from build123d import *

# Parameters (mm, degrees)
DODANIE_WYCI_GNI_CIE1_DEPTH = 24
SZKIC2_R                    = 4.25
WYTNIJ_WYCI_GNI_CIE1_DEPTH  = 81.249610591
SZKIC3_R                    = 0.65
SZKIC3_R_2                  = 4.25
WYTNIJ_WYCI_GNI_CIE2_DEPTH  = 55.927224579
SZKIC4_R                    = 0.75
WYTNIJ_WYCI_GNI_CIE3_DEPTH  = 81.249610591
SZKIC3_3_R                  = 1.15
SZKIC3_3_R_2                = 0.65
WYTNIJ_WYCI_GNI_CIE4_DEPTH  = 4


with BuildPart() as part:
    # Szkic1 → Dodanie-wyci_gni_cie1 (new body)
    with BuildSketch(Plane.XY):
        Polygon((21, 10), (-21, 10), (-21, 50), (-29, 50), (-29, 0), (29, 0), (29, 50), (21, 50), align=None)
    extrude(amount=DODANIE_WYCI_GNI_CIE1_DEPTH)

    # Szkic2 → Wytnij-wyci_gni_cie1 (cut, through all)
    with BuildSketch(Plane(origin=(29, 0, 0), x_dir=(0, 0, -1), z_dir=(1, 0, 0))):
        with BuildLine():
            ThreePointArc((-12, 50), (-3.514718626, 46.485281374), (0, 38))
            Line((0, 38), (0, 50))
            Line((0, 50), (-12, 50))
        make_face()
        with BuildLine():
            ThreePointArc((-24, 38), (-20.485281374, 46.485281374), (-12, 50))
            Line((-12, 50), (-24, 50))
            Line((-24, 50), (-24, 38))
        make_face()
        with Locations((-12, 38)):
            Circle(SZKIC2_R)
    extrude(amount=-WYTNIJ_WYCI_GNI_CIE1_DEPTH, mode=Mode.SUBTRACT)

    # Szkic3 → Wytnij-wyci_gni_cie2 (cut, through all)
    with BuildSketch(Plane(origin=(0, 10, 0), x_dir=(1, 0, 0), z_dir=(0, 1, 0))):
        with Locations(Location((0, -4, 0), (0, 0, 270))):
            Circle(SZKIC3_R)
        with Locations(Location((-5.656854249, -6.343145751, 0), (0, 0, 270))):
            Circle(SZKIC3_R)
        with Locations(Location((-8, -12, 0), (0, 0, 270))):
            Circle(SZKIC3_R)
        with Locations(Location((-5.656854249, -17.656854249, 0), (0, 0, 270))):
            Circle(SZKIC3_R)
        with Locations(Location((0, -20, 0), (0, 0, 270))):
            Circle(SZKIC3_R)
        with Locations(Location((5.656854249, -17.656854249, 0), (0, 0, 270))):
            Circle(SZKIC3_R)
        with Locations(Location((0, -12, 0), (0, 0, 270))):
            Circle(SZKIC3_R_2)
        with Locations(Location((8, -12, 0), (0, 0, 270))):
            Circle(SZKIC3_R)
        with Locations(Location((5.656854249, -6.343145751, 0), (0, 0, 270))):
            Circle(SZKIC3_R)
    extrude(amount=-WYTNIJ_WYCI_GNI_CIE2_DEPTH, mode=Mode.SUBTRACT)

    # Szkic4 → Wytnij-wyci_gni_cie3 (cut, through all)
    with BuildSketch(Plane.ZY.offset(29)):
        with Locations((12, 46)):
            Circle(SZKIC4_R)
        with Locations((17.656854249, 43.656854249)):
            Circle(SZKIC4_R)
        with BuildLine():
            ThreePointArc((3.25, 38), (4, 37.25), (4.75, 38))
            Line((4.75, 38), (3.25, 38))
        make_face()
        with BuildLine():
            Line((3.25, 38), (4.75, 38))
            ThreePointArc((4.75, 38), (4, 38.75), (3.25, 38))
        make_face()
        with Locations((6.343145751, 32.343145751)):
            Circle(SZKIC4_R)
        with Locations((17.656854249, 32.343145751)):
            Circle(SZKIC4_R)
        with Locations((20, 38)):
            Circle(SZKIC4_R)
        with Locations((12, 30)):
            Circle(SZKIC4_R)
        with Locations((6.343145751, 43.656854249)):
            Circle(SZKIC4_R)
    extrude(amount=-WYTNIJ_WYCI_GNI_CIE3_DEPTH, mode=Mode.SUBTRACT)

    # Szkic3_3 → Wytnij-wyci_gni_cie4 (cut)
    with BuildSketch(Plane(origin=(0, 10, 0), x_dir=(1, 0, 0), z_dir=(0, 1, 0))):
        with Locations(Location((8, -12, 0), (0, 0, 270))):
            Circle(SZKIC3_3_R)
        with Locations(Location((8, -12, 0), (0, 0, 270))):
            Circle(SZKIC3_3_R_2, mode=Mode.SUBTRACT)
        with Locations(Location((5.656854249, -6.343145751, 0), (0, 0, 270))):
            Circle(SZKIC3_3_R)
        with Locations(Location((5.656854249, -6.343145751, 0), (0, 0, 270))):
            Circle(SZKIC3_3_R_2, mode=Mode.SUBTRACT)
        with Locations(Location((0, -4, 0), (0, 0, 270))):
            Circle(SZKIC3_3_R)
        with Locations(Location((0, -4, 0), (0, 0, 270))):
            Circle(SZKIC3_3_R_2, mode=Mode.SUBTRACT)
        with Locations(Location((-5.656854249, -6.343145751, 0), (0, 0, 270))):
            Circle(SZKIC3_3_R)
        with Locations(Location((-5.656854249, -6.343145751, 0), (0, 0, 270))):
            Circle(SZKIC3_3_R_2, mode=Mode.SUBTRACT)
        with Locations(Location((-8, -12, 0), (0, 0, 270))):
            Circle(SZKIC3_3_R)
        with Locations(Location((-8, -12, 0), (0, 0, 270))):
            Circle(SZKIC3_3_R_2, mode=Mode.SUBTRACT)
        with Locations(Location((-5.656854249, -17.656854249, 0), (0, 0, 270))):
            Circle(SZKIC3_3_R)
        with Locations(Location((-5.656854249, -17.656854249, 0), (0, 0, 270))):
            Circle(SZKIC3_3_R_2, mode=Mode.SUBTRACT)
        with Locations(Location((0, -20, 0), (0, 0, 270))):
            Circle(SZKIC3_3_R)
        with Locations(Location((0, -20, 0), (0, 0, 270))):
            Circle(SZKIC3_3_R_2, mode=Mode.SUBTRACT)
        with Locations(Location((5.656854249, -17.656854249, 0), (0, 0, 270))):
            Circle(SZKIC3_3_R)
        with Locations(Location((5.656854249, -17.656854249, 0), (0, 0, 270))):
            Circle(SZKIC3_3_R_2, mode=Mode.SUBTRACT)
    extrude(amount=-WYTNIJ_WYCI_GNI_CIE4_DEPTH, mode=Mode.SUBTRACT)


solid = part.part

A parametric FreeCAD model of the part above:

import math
import FreeCAD as App
import Part
import Sketcher

V = App.Vector
Q = App.Units.Quantity


def add_polygon(sketch, points):
    """Adds a closed chain of lines whose ends are joined by coincident constraints."""
    first, n = sketch.GeometryCount, len(points)
    for a, b in zip(points, points[1:] + points[:1]):
        sketch.addGeometry(Part.LineSegment(App.Vector(*a, 0), App.Vector(*b, 0)), False)
    for i in range(n):
        sketch.addConstraint(Sketcher.Constraint("Coincident", first + i, 2, first + (i + 1) % n, 1))

doc = App.newDocument("Part")
body = doc.addObject("PartDesign::Body", "Body")

# Sketch on XY plane
sketch1 = body.newObject("Sketcher::SketchObject", "Sketch")
sketch1.AttachmentSupport = (doc.getObject("XY_Plane"), [""])
sketch1.MapMode = "FlatFace"
add_polygon(sketch1, [(21, 10), (-21, 10), (-21, 50), (-29, 50), (-29, 0), (29, 0), (29, 50), (21, 50)])  # lines 0-7
sketch1.addConstraint(Sketcher.Constraint("Horizontal", 0))
sketch1.addConstraint(Sketcher.Constraint("Vertical", 1))
sketch1.addConstraint(Sketcher.Constraint("Horizontal", 2))
sketch1.addConstraint(Sketcher.Constraint("Vertical", 3))
sketch1.addConstraint(Sketcher.Constraint("Horizontal", 4))
sketch1.addConstraint(Sketcher.Constraint("Vertical", 5))
sketch1.addConstraint(Sketcher.Constraint("Horizontal", 6))
sketch1.addConstraint(Sketcher.Constraint("Vertical", 7))
sketch1.addConstraint(Sketcher.Constraint("Symmetric", 3, 2, 4, 2, -1, 1))
sketch1.addConstraint(Sketcher.Constraint("Symmetric", 1, 2, 6, 2, -2))
sketch1.addConstraint(Sketcher.Constraint("DistanceX", 0, 2, 0, 1, Q("42 mm")))
sketch1.addConstraint(Sketcher.Constraint("DistanceX", 2, 2, 2, 1, Q("8 mm")))
sketch1.addConstraint(Sketcher.Constraint("DistanceY", 1, 1, 1, 2, Q("40 mm")))
sketch1.addConstraint(Sketcher.Constraint("DistanceY", 3, 2, 3, 1, Q("50 mm")))
pad1 = body.newObject("PartDesign::Pad", "Pad")
pad1.Profile = sketch1
pad1.Length = 24

# Sketch on YZ plane
sketch2 = body.newObject("Sketcher::SketchObject", "Sketch001")
sketch2.AttachmentSupport = (doc.getObject("YZ_Plane"), [""])
sketch2.MapMode = "FlatFace"
sketch2.AttachmentOffset = App.Placement(V(0, 0, 29), App.Rotation())
sketch2.addGeometry(Part.ArcOfCircle(Part.Circle(V(38, 12, 0), V(0, 0, 1), 12), math.radians(-90), math.radians(0)), False)
sketch2.addGeometry(Part.LineSegment(V(38, 0, 0), V(50, 0, 0)), False)
sketch2.addGeometry(Part.LineSegment(V(50, 0, 0), V(50, 12, 0)), False)
sketch2.addGeometry(Part.ArcOfCircle(Part.Circle(V(38, 12, 0), V(0, 0, 1), 12), math.radians(0), math.radians(90)), False)
sketch2.addGeometry(Part.LineSegment(V(50, 12, 0), V(50, 24, 0)), False)
sketch2.addGeometry(Part.LineSegment(V(50, 24, 0), V(38, 24, 0)), False)
sketch2.addGeometry(Part.Circle(V(38, 12, 0), V(0, 0, 1), 4.2), False)
sketch2.addConstraint(Sketcher.Constraint("Tangent", 0, 1, 1, 1))
sketch2.addConstraint(Sketcher.Constraint("Coincident", 1, 2, 2, 1))
sketch2.addConstraint(Sketcher.Constraint("Tangent", 2, 2, 0, 2))
sketch2.addConstraint(Sketcher.Constraint("Tangent", 3, 1, 4, 1))
sketch2.addConstraint(Sketcher.Constraint("Coincident", 4, 2, 5, 1))
sketch2.addConstraint(Sketcher.Constraint("Tangent", 5, 2, 3, 2))
sketch2.addConstraint(Sketcher.Constraint("Horizontal", 1))
sketch2.addConstraint(Sketcher.Constraint("Vertical", 2))
sketch2.addConstraint(Sketcher.Constraint("Vertical", 4))
sketch2.addConstraint(Sketcher.Constraint("Horizontal", 5))
sketch2.addConstraint(Sketcher.Constraint("Coincident", 3, 3, 0, 3))
sketch2.addConstraint(Sketcher.Constraint("Coincident", 6, 3, 0, 3))
sketch2.addConstraint(Sketcher.Constraint("Equal", 0, 3))
sketch2.addConstraint(Sketcher.Constraint("PointOnObject", 0, 1, -1))
sketch2.addConstraint(Sketcher.Constraint("Radius", 0, Q("12 mm")))
sketch2.addConstraint(Sketcher.Constraint("Diameter", 6, Q("8.5 mm")))
sketch2.addConstraint(Sketcher.Constraint("DistanceX", -1, 1, 0, 3, Q("38 mm")))
pocket1 = body.newObject("PartDesign::Pocket", "Pocket")
pocket1.Profile = sketch2
pocket1.Type = "ThroughAll"

# Sketch on XZ plane
sketch3 = body.newObject("Sketcher::SketchObject", "Sketch002")
sketch3.AttachmentSupport = (doc.getObject("XZ_Plane"), [""])
sketch3.MapMode = "FlatFace"
sketch3.AttachmentOffset = App.Placement(V(0, 0, -10), App.Rotation())
sketch3.addGeometry(Part.Circle(V(0, 4, 0), V(0, 0, 1), 0.7), False)
sketch3.addGeometry(Part.Circle(V(-5.7, 6.3, 0), V(0, 0, 1), 0.7), False)
sketch3.addGeometry(Part.Circle(V(-8, 12, 0), V(0, 0, 1), 0.7), False)
sketch3.addGeometry(Part.Circle(V(-5.7, 17.7, 0), V(0, 0, 1), 0.7), False)
sketch3.addGeometry(Part.Circle(V(0, 20, 0), V(0, 0, 1), 0.7), False)
sketch3.addGeometry(Part.Circle(V(5.7, 17.7, 0), V(0, 0, 1), 0.7), False)
sketch3.addGeometry(Part.Circle(V(0, 12, 0), V(0, 0, 1), 4.2), False)
sketch3.addGeometry(Part.Circle(V(8, 12, 0), V(0, 0, 1), 0.7), False)
sketch3.addGeometry(Part.Circle(V(5.7, 6.3, 0), V(0, 0, 1), 0.7), False)
sketch3.addConstraint(Sketcher.Constraint("Equal", 0, 1))
sketch3.addConstraint(Sketcher.Constraint("Equal", 1, 2))
sketch3.addConstraint(Sketcher.Constraint("Equal", 2, 3))
sketch3.addConstraint(Sketcher.Constraint("Equal", 3, 4))
sketch3.addConstraint(Sketcher.Constraint("Equal", 4, 5))
sketch3.addConstraint(Sketcher.Constraint("Equal", 5, 7))
sketch3.addConstraint(Sketcher.Constraint("Equal", 7, 8))
sketch3.addConstraint(Sketcher.Constraint("Symmetric", 3, 3, 5, 3, -2))
sketch3.addConstraint(Sketcher.Constraint("Symmetric", 2, 3, 7, 3, -2))
sketch3.addConstraint(Sketcher.Constraint("Symmetric", 1, 3, 8, 3, -2))
sketch3.addConstraint(Sketcher.Constraint("PointOnObject", 0, 3, -2))
sketch3.addConstraint(Sketcher.Constraint("PointOnObject", 4, 3, -2))
sketch3.addConstraint(Sketcher.Constraint("PointOnObject", 6, 3, -2))
sketch3.addConstraint(Sketcher.Constraint("Horizontal", 2, 3, 6, 3))
sketch3.addConstraint(Sketcher.Constraint("Vertical", 1, 3, 3, 3))
sketch3.addConstraint(Sketcher.Constraint("Diameter", 0, Q("1.3 mm")))
sketch3.addConstraint(Sketcher.Constraint("Diameter", 6, Q("8.5 mm")))
sketch3.addConstraint(Sketcher.Constraint("DistanceY", -1, 1, 0, 3, Q("4 mm")))
sketch3.addConstraint(Sketcher.Constraint("DistanceX", 2, 3, -1, 1, Q("8 mm")))
sketch3.addConstraint(Sketcher.Constraint("DistanceY", -1, 1, 2, 3, Q("12 mm")))
sketch3.addConstraint(Sketcher.Constraint("DistanceY", -1, 1, 4, 3, Q("20 mm")))
sketch3.addConstraint(Sketcher.Constraint("DistanceY", 1, 3, 3, 3, Q("11.313708 mm")))
sketch3.addConstraint(Sketcher.Constraint("DistanceX", 3, 3, 5, 3, Q("11.313708 mm")))
sketch3.addConstraint(Sketcher.Constraint("DistanceY", -1, 1, 1, 3, Q("6.343146 mm")))
pocket2 = body.newObject("PartDesign::Pocket", "Pocket001")
pocket2.Profile = sketch3
pocket2.Type = "ThroughAll"
pocket2.Reversed = True

# Sketch on YZ plane
sketch4 = body.newObject("Sketcher::SketchObject", "Sketch003")
sketch4.AttachmentSupport = (doc.getObject("YZ_Plane"), [""])
sketch4.MapMode = "FlatFace"
sketch4.AttachmentOffset = App.Placement(V(0, 0, -29), App.Rotation())
sketch4.addGeometry(Part.Circle(V(46, 12, 0), V(0, 0, 1), 0.8), False)
sketch4.addGeometry(Part.Circle(V(43.7, 17.7, 0), V(0, 0, 1), 0.8), False)
sketch4.addGeometry(Part.Circle(V(38, 4, 0), V(0, 0, 1), 0.8), False)
sketch4.addGeometry(Part.Circle(V(32.3, 6.3, 0), V(0, 0, 1), 0.8), False)
sketch4.addGeometry(Part.Circle(V(32.3, 17.7, 0), V(0, 0, 1), 0.8), False)
sketch4.addGeometry(Part.Circle(V(38, 20, 0), V(0, 0, 1), 0.8), False)
sketch4.addGeometry(Part.Circle(V(30, 12, 0), V(0, 0, 1), 0.8), False)
sketch4.addGeometry(Part.Circle(V(43.7, 6.3, 0), V(0, 0, 1), 0.8), False)
sketch4.addConstraint(Sketcher.Constraint("Equal", 0, 1))
sketch4.addConstraint(Sketcher.Constraint("Equal", 1, 2))
sketch4.addConstraint(Sketcher.Constraint("Equal", 2, 3))
sketch4.addConstraint(Sketcher.Constraint("Equal", 3, 4))
sketch4.addConstraint(Sketcher.Constraint("Equal", 4, 5))
sketch4.addConstraint(Sketcher.Constraint("Equal", 5, 6))
sketch4.addConstraint(Sketcher.Constraint("Equal", 6, 7))
sketch4.addConstraint(Sketcher.Constraint("Horizontal", 1, 3, 4, 3))
sketch4.addConstraint(Sketcher.Constraint("Horizontal", 0, 3, 6, 3))
sketch4.addConstraint(Sketcher.Constraint("Horizontal", 3, 3, 7, 3))
sketch4.addConstraint(Sketcher.Constraint("Vertical", 3, 3, 4, 3))
sketch4.addConstraint(Sketcher.Constraint("Vertical", 2, 3, 5, 3))
sketch4.addConstraint(Sketcher.Constraint("Vertical", 1, 3, 7, 3))
sketch4.addConstraint(Sketcher.Constraint("Diameter", 0, Q("1.5 mm")))
sketch4.addConstraint(Sketcher.Constraint("DistanceX", -1, 1, 0, 3, Q("46 mm")))
sketch4.addConstraint(Sketcher.Constraint("DistanceY", -1, 1, 0, 3, Q("12 mm")))
sketch4.addConstraint(Sketcher.Constraint("DistanceX", -1, 1, 2, 3, Q("38 mm")))
sketch4.addConstraint(Sketcher.Constraint("DistanceY", -1, 1, 2, 3, Q("4 mm")))
sketch4.addConstraint(Sketcher.Constraint("DistanceY", -1, 1, 5, 3, Q("20 mm")))
sketch4.addConstraint(Sketcher.Constraint("DistanceX", -1, 1, 6, 3, Q("30 mm")))
sketch4.addConstraint(Sketcher.Constraint("DistanceX", 3, 3, 1, 3, Q("11.313708 mm")))
sketch4.addConstraint(Sketcher.Constraint("DistanceY", 3, 3, 1, 3, Q("11.313708 mm")))
sketch4.addConstraint(Sketcher.Constraint("DistanceX", -1, 1, 1, 3, Q("43.656854 mm")))
sketch4.addConstraint(Sketcher.Constraint("DistanceY", -1, 1, 1, 3, Q("17.656854 mm")))
pocket3 = body.newObject("PartDesign::Pocket", "Pocket002")
pocket3.Profile = sketch4
pocket3.Type = "ThroughAll"
pocket3.Reversed = True

# Sketch on XZ plane
sketch5 = body.newObject("Sketcher::SketchObject", "Sketch004")
sketch5.AttachmentSupport = (doc.getObject("XZ_Plane"), [""])
sketch5.MapMode = "FlatFace"
sketch5.AttachmentOffset = App.Placement(V(0, 0, -10), App.Rotation())
sketch5.addGeometry(Part.Circle(V(8, 12, 0), V(0, 0, 1), 1.1), False)
sketch5.addGeometry(Part.Circle(V(8, 12, 0), V(0, 0, 1), 0.7), False)
sketch5.addGeometry(Part.Circle(V(5.7, 6.3, 0), V(0, 0, 1), 1.1), False)
sketch5.addGeometry(Part.Circle(V(5.7, 6.3, 0), V(0, 0, 1), 0.7), False)
sketch5.addGeometry(Part.Circle(V(0, 4, 0), V(0, 0, 1), 1.1), False)
sketch5.addGeometry(Part.Circle(V(0, 4, 0), V(0, 0, 1), 0.7), False)
sketch5.addGeometry(Part.Circle(V(-5.7, 6.3, 0), V(0, 0, 1), 1.1), False)
sketch5.addGeometry(Part.Circle(V(-5.7, 6.3, 0), V(0, 0, 1), 0.7), False)
sketch5.addGeometry(Part.Circle(V(-8, 12, 0), V(0, 0, 1), 1.1), False)
sketch5.addGeometry(Part.Circle(V(-8, 12, 0), V(0, 0, 1), 0.7), False)
sketch5.addGeometry(Part.Circle(V(-5.7, 17.7, 0), V(0, 0, 1), 1.1), False)
sketch5.addGeometry(Part.Circle(V(-5.7, 17.7, 0), V(0, 0, 1), 0.7), False)
sketch5.addGeometry(Part.Circle(V(0, 20, 0), V(0, 0, 1), 1.1), False)
sketch5.addGeometry(Part.Circle(V(0, 20, 0), V(0, 0, 1), 0.7), False)
sketch5.addGeometry(Part.Circle(V(5.7, 17.7, 0), V(0, 0, 1), 1.1), False)
sketch5.addGeometry(Part.Circle(V(5.7, 17.7, 0), V(0, 0, 1), 0.7), False)
sketch5.addConstraint(Sketcher.Constraint("Coincident", 1, 3, 0, 3))
sketch5.addConstraint(Sketcher.Constraint("Coincident", 3, 3, 2, 3))
sketch5.addConstraint(Sketcher.Constraint("Coincident", 5, 3, 4, 3))
sketch5.addConstraint(Sketcher.Constraint("Coincident", 7, 3, 6, 3))
sketch5.addConstraint(Sketcher.Constraint("Coincident", 9, 3, 8, 3))
sketch5.addConstraint(Sketcher.Constraint("Coincident", 11, 3, 10, 3))
sketch5.addConstraint(Sketcher.Constraint("Coincident", 13, 3, 12, 3))
sketch5.addConstraint(Sketcher.Constraint("Coincident", 15, 3, 14, 3))
sketch5.addConstraint(Sketcher.Constraint("Equal", 0, 2))
sketch5.addConstraint(Sketcher.Constraint("Equal", 1, 3))
sketch5.addConstraint(Sketcher.Constraint("Equal", 2, 4))
sketch5.addConstraint(Sketcher.Constraint("Equal", 3, 5))
sketch5.addConstraint(Sketcher.Constraint("Equal", 4, 6))
sketch5.addConstraint(Sketcher.Constraint("Equal", 5, 7))
sketch5.addConstraint(Sketcher.Constraint("Equal", 6, 8))
sketch5.addConstraint(Sketcher.Constraint("Equal", 7, 9))
sketch5.addConstraint(Sketcher.Constraint("Equal", 8, 10))
sketch5.addConstraint(Sketcher.Constraint("Equal", 9, 11))
sketch5.addConstraint(Sketcher.Constraint("Equal", 10, 12))
sketch5.addConstraint(Sketcher.Constraint("Equal", 11, 13))
sketch5.addConstraint(Sketcher.Constraint("Equal", 12, 14))
sketch5.addConstraint(Sketcher.Constraint("Equal", 13, 15))
sketch5.addConstraint(Sketcher.Constraint("Symmetric", 2, 3, 6, 3, -2))
sketch5.addConstraint(Sketcher.Constraint("Symmetric", 0, 3, 8, 3, -2))
sketch5.addConstraint(Sketcher.Constraint("Symmetric", 10, 3, 14, 3, -2))
sketch5.addConstraint(Sketcher.Constraint("PointOnObject", 4, 3, -2))
sketch5.addConstraint(Sketcher.Constraint("PointOnObject", 12, 3, -2))
sketch5.addConstraint(Sketcher.Constraint("Vertical", 7, 3, 10, 3))
sketch5.addConstraint(Sketcher.Constraint("Diameter", 0, Q("2.3 mm")))
sketch5.addConstraint(Sketcher.Constraint("Diameter", 1, Q("1.3 mm")))
sketch5.addConstraint(Sketcher.Constraint("DistanceX", -1, 1, 0, 3, Q("8 mm")))
sketch5.addConstraint(Sketcher.Constraint("DistanceY", -1, 1, 0, 3, Q("12 mm")))
sketch5.addConstraint(Sketcher.Constraint("DistanceY", -1, 1, 4, 3, Q("4 mm")))
sketch5.addConstraint(Sketcher.Constraint("DistanceY", -1, 1, 12, 3, Q("20 mm")))
sketch5.addConstraint(Sketcher.Constraint("DistanceX", 6, 3, 2, 3, Q("11.313708 mm")))
sketch5.addConstraint(Sketcher.Constraint("DistanceY", 6, 3, 10, 3, Q("11.313708 mm")))
sketch5.addConstraint(Sketcher.Constraint("DistanceY", -1, 1, 2, 3, Q("6.343146 mm")))
pocket4 = body.newObject("PartDesign::Pocket", "Pocket003")
pocket4.Profile = sketch5
pocket4.Length = 4
pocket4.Reversed = True

doc.recompute()
